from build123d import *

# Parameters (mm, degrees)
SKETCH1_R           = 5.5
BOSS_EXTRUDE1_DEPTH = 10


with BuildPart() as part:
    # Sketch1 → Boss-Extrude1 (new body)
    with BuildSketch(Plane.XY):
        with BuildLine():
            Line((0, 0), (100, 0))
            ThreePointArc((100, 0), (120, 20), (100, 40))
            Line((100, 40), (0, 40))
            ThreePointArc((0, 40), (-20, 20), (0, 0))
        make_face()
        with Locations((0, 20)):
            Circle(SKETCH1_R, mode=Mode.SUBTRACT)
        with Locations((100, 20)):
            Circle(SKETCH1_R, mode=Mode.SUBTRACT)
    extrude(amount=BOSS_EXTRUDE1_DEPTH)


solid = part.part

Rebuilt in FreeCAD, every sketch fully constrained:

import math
import FreeCAD as App
import Part
import Sketcher

V = App.Vector
Q = App.Units.Quantity

doc = App.newDocument("Part")
body = doc.addObject("PartDesign::Body", "Body")

# Sketch on XY plane
sketch1 = doc.addObject("Sketcher::SketchObject", "Sketch")
body.addObject(sketch1)
sketch1.AttachmentSupport = (doc.XY_Plane, [""])
sketch1.MapMode = "FlatFace"
sketch1.addGeometry([
    Part.LineSegment(V(0, 0, 0), V(100, 0, 0)),  # 0
    Part.ArcOfCircle(Part.Circle(V(100, 20, 0), V(0, 0, 1), 20), math.radians(-90), math.radians(90)),  # 1
    Part.LineSegment(V(100, 40, 0), V(0, 40, 0)),  # 2
    Part.ArcOfCircle(Part.Circle(V(0, 20, 0), V(0, 0, 1), 20), math.radians(90), math.radians(270)),  # 3
    Part.Circle(V(0, 20, 0), V(0, 0, 1), 6),  # 4
    Part.Circle(V(100, 20, 0), V(0, 0, 1), 6),  # 5
], False)
sketch1.addConstraint([
    Sketcher.Constraint("Tangent", 0, 2, 1, 1),
    Sketcher.Constraint("Tangent", 1, 2, 2, 1),
    Sketcher.Constraint("Tangent", 2, 2, 3, 1),
    Sketcher.Constraint("Tangent", 3, 2, 0, 1),
    Sketcher.Constraint("Horizontal", 0),
    Sketcher.Constraint("Horizontal", 2),
    Sketcher.Constraint("Coincident", 3, 2, -1, 1),
    Sketcher.Constraint("Coincident", 4, 3, 3, 3),
    Sketcher.Constraint("Coincident", 5, 3, 1, 3),
    Sketcher.Constraint("Equal", 4, 5),
    Sketcher.Constraint("Diameter", 4, Q("11 mm")),
    Sketcher.Constraint("Radius", 1, Q("20 mm")),
    Sketcher.Constraint("DistanceX", 0, 1, 0, 2, Q("100 mm")),
])
pad1 = doc.addObject("PartDesign::Pad", "Pad")
body.addObject(pad1)
pad1.Profile = sketch1
pad1.Length = 10

doc.recompute()
